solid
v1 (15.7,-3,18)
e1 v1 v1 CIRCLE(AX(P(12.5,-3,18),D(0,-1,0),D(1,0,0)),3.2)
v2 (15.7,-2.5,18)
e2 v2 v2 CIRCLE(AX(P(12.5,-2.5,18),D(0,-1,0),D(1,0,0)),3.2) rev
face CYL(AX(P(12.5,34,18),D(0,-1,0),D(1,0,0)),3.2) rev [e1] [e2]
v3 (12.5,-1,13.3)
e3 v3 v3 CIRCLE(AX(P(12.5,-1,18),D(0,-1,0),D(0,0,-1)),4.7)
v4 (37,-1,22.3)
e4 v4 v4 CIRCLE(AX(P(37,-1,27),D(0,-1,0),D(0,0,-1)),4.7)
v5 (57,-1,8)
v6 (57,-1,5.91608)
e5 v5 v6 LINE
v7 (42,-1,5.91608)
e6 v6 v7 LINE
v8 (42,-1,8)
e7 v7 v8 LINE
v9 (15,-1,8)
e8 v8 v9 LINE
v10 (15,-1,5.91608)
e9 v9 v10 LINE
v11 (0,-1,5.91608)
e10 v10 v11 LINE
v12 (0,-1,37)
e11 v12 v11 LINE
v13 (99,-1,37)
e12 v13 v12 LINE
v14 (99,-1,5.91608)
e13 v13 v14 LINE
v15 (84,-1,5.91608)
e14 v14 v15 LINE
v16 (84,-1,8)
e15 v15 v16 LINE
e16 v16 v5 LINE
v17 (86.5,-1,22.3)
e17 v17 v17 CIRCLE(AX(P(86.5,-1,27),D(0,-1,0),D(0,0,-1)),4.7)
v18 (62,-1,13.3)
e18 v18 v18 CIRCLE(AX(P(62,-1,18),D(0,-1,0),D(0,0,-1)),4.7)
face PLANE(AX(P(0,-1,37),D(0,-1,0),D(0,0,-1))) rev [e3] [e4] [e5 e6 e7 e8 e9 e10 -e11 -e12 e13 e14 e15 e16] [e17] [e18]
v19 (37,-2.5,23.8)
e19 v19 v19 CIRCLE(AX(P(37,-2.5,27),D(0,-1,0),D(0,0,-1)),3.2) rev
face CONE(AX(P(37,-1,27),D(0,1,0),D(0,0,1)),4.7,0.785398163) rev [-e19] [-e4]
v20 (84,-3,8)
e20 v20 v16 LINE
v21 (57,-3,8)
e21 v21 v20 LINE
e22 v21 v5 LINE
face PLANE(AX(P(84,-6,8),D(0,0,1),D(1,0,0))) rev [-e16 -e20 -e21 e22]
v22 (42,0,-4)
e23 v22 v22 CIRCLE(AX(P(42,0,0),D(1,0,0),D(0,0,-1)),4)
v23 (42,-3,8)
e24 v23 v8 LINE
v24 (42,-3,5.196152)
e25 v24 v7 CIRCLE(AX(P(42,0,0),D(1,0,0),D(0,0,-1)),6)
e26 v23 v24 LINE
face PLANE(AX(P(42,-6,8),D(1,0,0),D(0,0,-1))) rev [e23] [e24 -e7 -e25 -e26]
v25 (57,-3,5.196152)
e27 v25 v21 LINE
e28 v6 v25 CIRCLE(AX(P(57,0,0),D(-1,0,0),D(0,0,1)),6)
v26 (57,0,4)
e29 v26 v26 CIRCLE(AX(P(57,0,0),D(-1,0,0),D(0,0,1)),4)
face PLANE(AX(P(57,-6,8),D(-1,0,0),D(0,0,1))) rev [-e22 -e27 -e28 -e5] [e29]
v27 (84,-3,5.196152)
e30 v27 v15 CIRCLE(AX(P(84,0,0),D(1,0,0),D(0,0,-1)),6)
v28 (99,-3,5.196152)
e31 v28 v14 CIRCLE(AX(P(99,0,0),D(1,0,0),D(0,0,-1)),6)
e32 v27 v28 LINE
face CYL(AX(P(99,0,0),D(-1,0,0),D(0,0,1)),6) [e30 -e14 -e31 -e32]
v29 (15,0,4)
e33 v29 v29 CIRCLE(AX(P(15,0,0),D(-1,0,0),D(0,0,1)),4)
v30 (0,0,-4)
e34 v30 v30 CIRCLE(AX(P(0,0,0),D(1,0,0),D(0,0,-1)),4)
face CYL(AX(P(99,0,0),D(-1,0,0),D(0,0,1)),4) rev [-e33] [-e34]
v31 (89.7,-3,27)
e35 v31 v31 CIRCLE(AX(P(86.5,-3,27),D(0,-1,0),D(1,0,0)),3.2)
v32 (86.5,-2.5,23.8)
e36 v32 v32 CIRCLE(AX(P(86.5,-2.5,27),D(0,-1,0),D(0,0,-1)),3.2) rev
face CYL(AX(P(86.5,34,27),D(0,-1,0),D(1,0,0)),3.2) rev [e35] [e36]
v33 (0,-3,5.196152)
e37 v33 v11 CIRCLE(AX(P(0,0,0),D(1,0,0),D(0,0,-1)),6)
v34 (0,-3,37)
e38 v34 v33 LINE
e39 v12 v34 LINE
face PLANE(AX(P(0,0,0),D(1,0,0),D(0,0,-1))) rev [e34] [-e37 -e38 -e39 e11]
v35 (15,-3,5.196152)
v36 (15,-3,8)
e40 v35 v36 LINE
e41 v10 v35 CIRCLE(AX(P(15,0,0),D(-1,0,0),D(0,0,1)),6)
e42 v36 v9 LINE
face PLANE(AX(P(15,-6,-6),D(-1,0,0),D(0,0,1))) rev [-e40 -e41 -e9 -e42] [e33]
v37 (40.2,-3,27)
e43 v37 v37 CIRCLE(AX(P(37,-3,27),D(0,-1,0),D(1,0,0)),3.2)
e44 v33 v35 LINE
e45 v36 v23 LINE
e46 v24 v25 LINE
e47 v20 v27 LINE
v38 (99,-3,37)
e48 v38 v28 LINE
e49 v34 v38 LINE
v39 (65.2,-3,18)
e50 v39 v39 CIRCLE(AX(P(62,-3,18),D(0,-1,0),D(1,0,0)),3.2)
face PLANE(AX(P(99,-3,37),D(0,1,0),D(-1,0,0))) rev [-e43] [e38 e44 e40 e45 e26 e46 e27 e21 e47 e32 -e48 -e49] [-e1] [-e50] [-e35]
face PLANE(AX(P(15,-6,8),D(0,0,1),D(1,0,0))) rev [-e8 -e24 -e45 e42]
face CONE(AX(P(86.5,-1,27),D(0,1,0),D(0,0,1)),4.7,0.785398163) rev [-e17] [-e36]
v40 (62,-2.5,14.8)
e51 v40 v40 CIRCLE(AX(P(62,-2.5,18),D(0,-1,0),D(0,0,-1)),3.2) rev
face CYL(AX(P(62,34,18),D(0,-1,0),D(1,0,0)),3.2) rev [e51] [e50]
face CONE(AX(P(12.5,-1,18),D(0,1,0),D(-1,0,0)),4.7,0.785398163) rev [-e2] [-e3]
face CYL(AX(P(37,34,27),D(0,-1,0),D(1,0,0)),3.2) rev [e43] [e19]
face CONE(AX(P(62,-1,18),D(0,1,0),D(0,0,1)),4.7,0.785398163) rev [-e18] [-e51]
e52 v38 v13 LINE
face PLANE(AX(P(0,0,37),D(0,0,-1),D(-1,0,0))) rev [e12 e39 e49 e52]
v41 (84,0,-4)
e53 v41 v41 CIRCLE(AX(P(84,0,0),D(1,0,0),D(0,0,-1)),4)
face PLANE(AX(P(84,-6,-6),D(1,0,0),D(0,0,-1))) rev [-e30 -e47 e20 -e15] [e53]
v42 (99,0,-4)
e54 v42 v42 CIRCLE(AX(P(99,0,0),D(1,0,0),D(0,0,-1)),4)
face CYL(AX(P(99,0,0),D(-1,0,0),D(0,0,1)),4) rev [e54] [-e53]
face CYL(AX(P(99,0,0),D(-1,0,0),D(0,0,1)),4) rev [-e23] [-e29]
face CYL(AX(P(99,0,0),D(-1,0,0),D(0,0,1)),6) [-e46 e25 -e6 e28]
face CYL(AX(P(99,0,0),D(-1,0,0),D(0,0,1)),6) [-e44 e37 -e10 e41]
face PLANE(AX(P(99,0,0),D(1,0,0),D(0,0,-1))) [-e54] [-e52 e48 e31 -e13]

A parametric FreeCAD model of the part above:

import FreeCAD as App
import Part
import Sketcher
Q = App.Units.Quantity


def edges_at(feature, points):
    """Names of the edges that pass closest to the given points."""
    edges = feature.Shape.Edges
    near = lambda p: min(range(len(edges)), key=lambda i: edges[i].distToShape(Part.Vertex(*p))[0])
    return sorted({f"Edge{near(p) + 1}" for p in points})


def add_polygon(sketch, points):
    """Adds a closed chain of lines whose ends are joined by coincident constraints."""
    first, n = sketch.GeometryCount, len(points)
    for a, b in zip(points, points[1:] + points[:1]):
        sketch.addGeometry(Part.LineSegment(App.Vector(*a, 0), App.Vector(*b, 0)), False)
    for i in range(n):
        sketch.addConstraint(Sketcher.Constraint("Coincident", first + i, 2, first + (i + 1) % n, 1))

doc = App.newDocument("Part")
body = doc.addObject("PartDesign::Body", "Body")

# Sketch on YZ plane
sketch1 = body.newObject("Sketcher::SketchObject", "Sketch")
sketch1.AttachmentSupport = (doc.getObject("YZ_Plane"), [""])
sketch1.MapMode = "FlatFace"
sketch1.addGeometry(Part.Circle(App.Vector(0, 0, 0), App.Vector(0, 0, 1), 6), False)
sketch1.addGeometry(Part.Circle(App.Vector(0, 0, 0), App.Vector(0, 0, 1), 4), False)
sketch1.addConstraint(Sketcher.Constraint("Coincident", 0, 3, -1, 1))
sketch1.addConstraint(Sketcher.Constraint("Coincident", 1, 3, -1, 1))
sketch1.addConstraint(Sketcher.Constraint("Diameter", 0, Q("12 mm")))
sketch1.addConstraint(Sketcher.Constraint("Diameter", 1, Q("8 mm")))
pad1 = body.newObject("PartDesign::Pad", "Pad")
pad1.Profile = sketch1
pad1.Length = 99

# Sketch on XY plane
sketch2 = body.newObject("Sketcher::SketchObject", "Sketch001")
sketch2.AttachmentSupport = (doc.getObject("XY_Plane"), [""])
sketch2.MapMode = "FlatFace"
add_polygon(sketch2, [(0, -1), (0, -3), (99, -3), (99, -1)])  # lines 0-3
sketch2.addConstraint(Sketcher.Constraint("Vertical", 0))
sketch2.addConstraint(Sketcher.Constraint("Horizontal", 1))
sketch2.addConstraint(Sketcher.Constraint("Vertical", 2))
sketch2.addConstraint(Sketcher.Constraint("Horizontal", 3))
sketch2.addConstraint(Sketcher.Constraint("PointOnObject", 0, 2, -2))
sketch2.addConstraint(Sketcher.Constraint("DistanceX", 1, 1, 1, 2, Q("99 mm")))
sketch2.addConstraint(Sketcher.Constraint("DistanceY", 0, 2, 0, 1, Q("2 mm")))
sketch2.addConstraint(Sketcher.Constraint("DistanceY", 0, 2, -1, 1, Q("3 mm")))
pad2 = body.newObject("PartDesign::Pad", "Pad001")
pad2.Profile = sketch2
pad2.Length = 37

# Sketch on YZ plane
sketch3 = body.newObject("Sketcher::SketchObject", "Sketch002")
sketch3.AttachmentSupport = (doc.getObject("YZ_Plane"), [""])
sketch3.MapMode = "FlatFace"
sketch3.addGeometry(Part.Circle(App.Vector(0, 0, 0), App.Vector(0, 0, 1), 4), False)
sketch3.addConstraint(Sketcher.Constraint("Coincident", 0, 3, -1, 1))
sketch3.addConstraint(Sketcher.Constraint("Diameter", 0, Q("8 mm")))
pocket1 = body.newObject("PartDesign::Pocket", "Pocket")
pocket1.Profile = sketch3
pocket1.Type = "ThroughAll"
pocket1.Reversed = True

# Sketch on XZ plane
sketch4 = body.newObject("Sketcher::SketchObject", "Sketch003")
sketch4.AttachmentSupport = (doc.getObject("XZ_Plane"), [""])
sketch4.MapMode = "FlatFace"
sketch4.AttachmentOffset = App.Placement(App.Vector(0, 0, 1), App.Rotation())
add_polygon(sketch4, [(15, -6), (15, 8), (42, 8), (42, -6)])  # lines 0-3
add_polygon(sketch4, [(57, -6), (57, 8), (84, 8), (84, -6)])  # lines 4-7
sketch4.addConstraint(Sketcher.Constraint("Vertical", 0))
sketch4.addConstraint(Sketcher.Constraint("Horizontal", 1))
sketch4.addConstraint(Sketcher.Constraint("Vertical", 2))
sketch4.addConstraint(Sketcher.Constraint("Horizontal", 3))
sketch4.addConstraint(Sketcher.Constraint("Vertical", 4))
sketch4.addConstraint(Sketcher.Constraint("Horizontal", 5))
sketch4.addConstraint(Sketcher.Constraint("Vertical", 6))
sketch4.addConstraint(Sketcher.Constraint("Horizontal", 7))
sketch4.addConstraint(Sketcher.Constraint("Horizontal", 1, 2, 4, 2))
sketch4.addConstraint(Sketcher.Constraint("Horizontal", 3, 2, 6, 2))
sketch4.addConstraint(Sketcher.Constraint("Equal", 3, 5))
sketch4.addConstraint(Sketcher.Constraint("DistanceX", 1, 1, 1, 2, Q("27 mm")))
sketch4.addConstraint(Sketcher.Constraint("DistanceY", 0, 1, 0, 2, Q("14 mm")))
sketch4.addConstraint(Sketcher.Constraint("DistanceX", -1, 1, 0, 2, Q("15 mm")))
sketch4.addConstraint(Sketcher.Constraint("DistanceY", -1, 1, 0, 2, Q("8 mm")))
sketch4.addConstraint(Sketcher.Constraint("DistanceX", -1, 1, 4, 2, Q("57 mm")))
pocket2 = body.newObject("PartDesign::Pocket", "Pocket001")
pocket2.Profile = sketch4
pocket2.Type = "ThroughAll"
pocket2.Midplane = True

# Sketch on XZ plane
sketch5 = body.newObject("Sketcher::SketchObject", "Sketch004")
sketch5.AttachmentSupport = (doc.getObject("XZ_Plane"), [""])
sketch5.MapMode = "FlatFace"
sketch5.AttachmentOffset = App.Placement(App.Vector(0, 0, 3), App.Rotation())
sketch5.addGeometry(Part.Circle(App.Vector(12.5, 18, 0), App.Vector(0, 0, 1), 3.2), False)
sketch5.addGeometry(Part.Circle(App.Vector(37, 27, 0), App.Vector(0, 0, 1), 3.2), False)
sketch5.addGeometry(Part.Circle(App.Vector(62, 18, 0), App.Vector(0, 0, 1), 3.2), False)
sketch5.addGeometry(Part.Circle(App.Vector(86.5, 27, 0), App.Vector(0, 0, 1), 3.2), False)
sketch5.addConstraint(Sketcher.Constraint("Equal", 0, 1))
sketch5.addConstraint(Sketcher.Constraint("Equal", 1, 2))
sketch5.addConstraint(Sketcher.Constraint("Equal", 2, 3))
sketch5.addConstraint(Sketcher.Constraint("Horizontal", 0, 3, 2, 3))
sketch5.addConstraint(Sketcher.Constraint("Horizontal", 1, 3, 3, 3))
sketch5.addConstraint(Sketcher.Constraint("Diameter", 0, Q("6.4 mm")))
sketch5.addConstraint(Sketcher.Constraint("DistanceY", -1, 1, 0, 3, Q("18 mm")))
sketch5.addConstraint(Sketcher.Constraint("DistanceX", -1, 1, 1, 3, Q("37 mm")))
sketch5.addConstraint(Sketcher.Constraint("DistanceY", -1, 1, 1, 3, Q("27 mm")))
sketch5.addConstraint(Sketcher.Constraint("DistanceX", -1, 1, 2, 3, Q("62 mm")))
sketch5.addConstraint(Sketcher.Constraint("DistanceX", 0, 3, 3, 3, Q("74 mm")))
sketch5.addConstraint(Sketcher.Constraint("DistanceX", -1, 1, 0, 3, Q("12.5 mm")))
pocket3 = body.newObject("PartDesign::Pocket", "Pocket002")
pocket3.Profile = sketch5
pocket3.Length = 37
doc.recompute()

chamfer = body.newObject("PartDesign::Chamfer", "Chamfer")
chamfer.Base = (pocket3, edges_at(pocket3, [
    (9.3, -1, 18),
    (33.8, -1, 27),
    (58.8, -1, 18),
    (83.3, -1, 27),
]))
chamfer.Size = 1.5

doc.recompute()
